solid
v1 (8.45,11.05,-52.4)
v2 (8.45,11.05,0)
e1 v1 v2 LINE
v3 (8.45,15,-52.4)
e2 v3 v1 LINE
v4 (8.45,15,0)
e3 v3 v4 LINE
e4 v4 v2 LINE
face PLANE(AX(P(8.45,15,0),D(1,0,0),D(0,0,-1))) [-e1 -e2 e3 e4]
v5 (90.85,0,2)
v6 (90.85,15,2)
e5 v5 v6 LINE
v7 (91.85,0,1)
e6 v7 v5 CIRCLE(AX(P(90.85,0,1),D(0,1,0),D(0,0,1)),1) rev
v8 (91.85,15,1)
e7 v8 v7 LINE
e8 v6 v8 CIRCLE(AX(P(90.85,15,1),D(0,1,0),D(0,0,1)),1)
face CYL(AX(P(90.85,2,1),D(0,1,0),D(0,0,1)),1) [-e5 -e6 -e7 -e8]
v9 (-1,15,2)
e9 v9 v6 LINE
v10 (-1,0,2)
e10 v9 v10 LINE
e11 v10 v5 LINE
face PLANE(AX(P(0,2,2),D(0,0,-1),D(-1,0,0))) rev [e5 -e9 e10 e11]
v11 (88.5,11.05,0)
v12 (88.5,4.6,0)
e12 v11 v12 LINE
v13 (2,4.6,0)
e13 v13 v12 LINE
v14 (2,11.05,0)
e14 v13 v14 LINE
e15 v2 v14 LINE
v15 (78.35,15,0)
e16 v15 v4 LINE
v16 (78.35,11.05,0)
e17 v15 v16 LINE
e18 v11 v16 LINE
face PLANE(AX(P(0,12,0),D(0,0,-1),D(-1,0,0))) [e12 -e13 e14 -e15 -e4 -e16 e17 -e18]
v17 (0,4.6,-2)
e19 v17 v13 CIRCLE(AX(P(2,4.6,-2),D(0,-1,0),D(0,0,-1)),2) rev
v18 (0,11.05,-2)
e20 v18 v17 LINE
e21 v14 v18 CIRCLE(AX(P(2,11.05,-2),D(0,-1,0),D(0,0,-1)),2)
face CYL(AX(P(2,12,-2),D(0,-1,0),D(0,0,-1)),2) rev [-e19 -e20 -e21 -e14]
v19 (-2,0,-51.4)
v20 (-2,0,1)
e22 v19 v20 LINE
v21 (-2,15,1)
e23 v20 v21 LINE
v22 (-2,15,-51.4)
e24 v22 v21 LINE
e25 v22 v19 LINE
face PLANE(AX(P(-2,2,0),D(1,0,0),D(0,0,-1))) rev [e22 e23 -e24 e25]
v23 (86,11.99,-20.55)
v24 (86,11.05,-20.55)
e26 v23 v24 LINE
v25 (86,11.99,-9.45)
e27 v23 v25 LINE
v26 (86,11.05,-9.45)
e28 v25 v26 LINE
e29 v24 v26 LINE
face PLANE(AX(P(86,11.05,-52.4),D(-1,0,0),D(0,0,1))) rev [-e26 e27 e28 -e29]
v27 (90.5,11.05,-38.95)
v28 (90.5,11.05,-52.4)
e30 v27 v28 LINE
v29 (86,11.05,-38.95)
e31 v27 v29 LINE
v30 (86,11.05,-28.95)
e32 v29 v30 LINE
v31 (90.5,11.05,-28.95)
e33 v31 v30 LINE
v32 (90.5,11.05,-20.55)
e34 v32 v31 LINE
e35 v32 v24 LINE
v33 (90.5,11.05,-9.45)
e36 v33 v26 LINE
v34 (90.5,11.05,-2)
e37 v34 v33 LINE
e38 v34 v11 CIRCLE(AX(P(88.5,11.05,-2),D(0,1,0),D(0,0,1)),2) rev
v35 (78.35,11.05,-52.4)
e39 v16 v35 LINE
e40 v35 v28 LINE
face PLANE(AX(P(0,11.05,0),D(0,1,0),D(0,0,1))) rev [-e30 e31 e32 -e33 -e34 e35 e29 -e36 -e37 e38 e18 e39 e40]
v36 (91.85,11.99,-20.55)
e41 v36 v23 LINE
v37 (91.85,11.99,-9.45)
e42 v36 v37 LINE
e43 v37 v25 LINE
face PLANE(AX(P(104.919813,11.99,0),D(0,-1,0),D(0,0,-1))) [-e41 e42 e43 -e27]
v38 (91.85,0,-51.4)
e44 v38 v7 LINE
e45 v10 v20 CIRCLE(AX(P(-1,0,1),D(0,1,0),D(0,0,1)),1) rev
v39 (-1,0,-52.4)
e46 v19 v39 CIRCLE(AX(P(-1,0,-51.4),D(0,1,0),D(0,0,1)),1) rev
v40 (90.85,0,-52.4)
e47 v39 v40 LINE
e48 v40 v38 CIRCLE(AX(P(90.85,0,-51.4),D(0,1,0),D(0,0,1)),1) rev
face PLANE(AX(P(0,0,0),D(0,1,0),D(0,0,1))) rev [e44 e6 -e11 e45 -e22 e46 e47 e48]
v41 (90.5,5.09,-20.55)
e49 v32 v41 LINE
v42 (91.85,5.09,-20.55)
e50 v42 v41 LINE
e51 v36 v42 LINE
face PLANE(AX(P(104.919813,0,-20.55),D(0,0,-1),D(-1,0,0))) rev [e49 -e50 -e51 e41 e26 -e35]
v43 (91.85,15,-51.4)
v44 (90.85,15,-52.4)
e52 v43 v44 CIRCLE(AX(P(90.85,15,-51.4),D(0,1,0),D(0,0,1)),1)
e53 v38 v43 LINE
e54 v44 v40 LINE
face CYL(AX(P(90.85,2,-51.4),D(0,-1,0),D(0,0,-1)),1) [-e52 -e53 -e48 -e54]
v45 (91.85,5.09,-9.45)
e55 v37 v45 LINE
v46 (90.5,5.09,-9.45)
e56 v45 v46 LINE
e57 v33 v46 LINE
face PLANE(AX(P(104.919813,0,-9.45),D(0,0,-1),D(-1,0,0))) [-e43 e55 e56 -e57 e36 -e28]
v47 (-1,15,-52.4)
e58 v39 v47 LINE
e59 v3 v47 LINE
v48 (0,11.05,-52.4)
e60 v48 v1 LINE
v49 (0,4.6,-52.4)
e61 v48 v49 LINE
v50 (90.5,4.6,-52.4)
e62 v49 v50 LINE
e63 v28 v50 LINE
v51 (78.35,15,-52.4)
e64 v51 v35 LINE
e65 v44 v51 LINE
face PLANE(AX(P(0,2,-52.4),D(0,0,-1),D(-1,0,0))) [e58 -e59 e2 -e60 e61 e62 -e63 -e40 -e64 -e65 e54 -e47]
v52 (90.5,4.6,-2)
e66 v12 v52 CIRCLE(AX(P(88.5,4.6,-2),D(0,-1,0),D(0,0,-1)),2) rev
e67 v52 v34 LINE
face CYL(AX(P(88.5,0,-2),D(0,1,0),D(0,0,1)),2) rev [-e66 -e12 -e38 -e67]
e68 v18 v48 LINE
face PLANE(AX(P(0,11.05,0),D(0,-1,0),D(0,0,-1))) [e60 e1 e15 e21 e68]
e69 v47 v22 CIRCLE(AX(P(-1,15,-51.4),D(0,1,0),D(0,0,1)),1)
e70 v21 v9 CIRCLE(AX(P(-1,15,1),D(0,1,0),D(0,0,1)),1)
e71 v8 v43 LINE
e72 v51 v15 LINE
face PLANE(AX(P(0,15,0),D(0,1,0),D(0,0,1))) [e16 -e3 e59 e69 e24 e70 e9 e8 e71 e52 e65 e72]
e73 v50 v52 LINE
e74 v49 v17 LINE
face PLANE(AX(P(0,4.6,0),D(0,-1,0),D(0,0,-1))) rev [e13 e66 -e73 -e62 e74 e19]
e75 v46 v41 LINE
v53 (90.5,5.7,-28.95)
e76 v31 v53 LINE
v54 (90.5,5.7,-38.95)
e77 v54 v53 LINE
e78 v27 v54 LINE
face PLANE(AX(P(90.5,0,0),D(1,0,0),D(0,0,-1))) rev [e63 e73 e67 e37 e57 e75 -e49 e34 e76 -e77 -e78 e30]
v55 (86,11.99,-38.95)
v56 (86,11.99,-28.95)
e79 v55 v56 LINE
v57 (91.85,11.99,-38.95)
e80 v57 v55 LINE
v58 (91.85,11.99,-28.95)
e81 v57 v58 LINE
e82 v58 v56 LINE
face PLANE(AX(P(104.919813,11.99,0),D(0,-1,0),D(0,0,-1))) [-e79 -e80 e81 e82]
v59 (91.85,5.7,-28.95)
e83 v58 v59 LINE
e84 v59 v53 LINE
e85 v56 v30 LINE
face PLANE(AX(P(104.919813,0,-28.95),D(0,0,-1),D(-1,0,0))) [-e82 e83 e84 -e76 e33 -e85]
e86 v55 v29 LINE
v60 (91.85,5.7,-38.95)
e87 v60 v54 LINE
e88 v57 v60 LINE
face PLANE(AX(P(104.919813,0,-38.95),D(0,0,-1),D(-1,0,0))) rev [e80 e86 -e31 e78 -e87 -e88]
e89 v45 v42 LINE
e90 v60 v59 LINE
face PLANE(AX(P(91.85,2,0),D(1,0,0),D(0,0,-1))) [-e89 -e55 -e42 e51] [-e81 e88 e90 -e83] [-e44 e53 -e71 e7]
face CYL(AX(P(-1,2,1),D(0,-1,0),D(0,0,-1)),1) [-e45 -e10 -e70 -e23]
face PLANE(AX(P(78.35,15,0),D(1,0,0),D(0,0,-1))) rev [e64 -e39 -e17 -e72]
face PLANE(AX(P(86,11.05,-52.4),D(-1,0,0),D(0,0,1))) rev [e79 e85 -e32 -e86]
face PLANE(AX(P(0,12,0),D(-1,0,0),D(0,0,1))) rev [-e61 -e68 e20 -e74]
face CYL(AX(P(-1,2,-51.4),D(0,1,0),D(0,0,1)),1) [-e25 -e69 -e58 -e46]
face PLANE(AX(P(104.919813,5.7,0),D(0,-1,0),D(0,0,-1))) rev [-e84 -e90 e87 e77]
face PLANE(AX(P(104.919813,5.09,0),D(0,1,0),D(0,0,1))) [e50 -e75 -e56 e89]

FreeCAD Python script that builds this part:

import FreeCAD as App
import Part
import Sketcher

V = App.Vector
Q = App.Units.Quantity


def edges_at(feature, points):
    """Names of the edges that pass closest to the given points."""
    edges = feature.Shape.Edges
    near = lambda p: min(range(len(edges)), key=lambda i: edges[i].distToShape(Part.Vertex(*p))[0])
    return sorted({f"Edge{near(p) + 1}" for p in points})


def add_polygon(sketch, points):
    """Adds a closed chain of lines whose ends are joined by coincident constraints."""
    first, n = sketch.GeometryCount, len(points)
    for a, b in zip(points, points[1:] + points[:1]):
        sketch.addGeometry(Part.LineSegment(App.Vector(*a, 0), App.Vector(*b, 0)), False)
    for i in range(n):
        sketch.addConstraint(Sketcher.Constraint("Coincident", first + i, 2, first + (i + 1) % n, 1))

doc = App.newDocument("Part")
body = doc.addObject("PartDesign::Body", "Body")

# Sketch on XZ plane
sketch1 = body.newObject("Sketcher::SketchObject", "Sketch")
sketch1.AttachmentSupport = (doc.getObject("XZ_Plane"), [""])
sketch1.MapMode = "FlatFace"
add_polygon(sketch1, [(-2, -52), (-2, 2), (92, 2), (92, -52)])  # lines 0-3
sketch1.addConstraint([
    Sketcher.Constraint("Vertical", 0),
    Sketcher.Constraint("Horizontal", 1),
    Sketcher.Constraint("Vertical", 2),
    Sketcher.Constraint("Horizontal", 3),
    Sketcher.Constraint("DistanceY", 0, 1, 0, 2, Q("54.4 mm")),
    Sketcher.Constraint("DistanceX", 0, 2, -1, 1, Q("2 mm")),
    Sketcher.Constraint("DistanceY", -1, 1, 0, 2, Q("2 mm")),
    Sketcher.Constraint("DistanceX", 1, 1, 1, 2, Q("93.85 mm")),
])
pad1 = body.newObject("PartDesign::Pad", "Pad")
pad1.Profile = sketch1
pad1.Length = 2
pad1.Reversed = True

# Sketch on XZ plane
sketch2 = body.newObject("Sketcher::SketchObject", "Sketch001")
sketch2.AttachmentSupport = (doc.getObject("XZ_Plane"), [""])
sketch2.MapMode = "FlatFace"
sketch2.AttachmentOffset = App.Placement(V(0, 0, -2), App.Rotation())
add_polygon(sketch2, [(-2, -52), (-2, 2), (92, 2), (92, -52)])  # lines 0-3
add_polygon(sketch2, [(86, 0), (0, 0), (0, -50), (86, -50)])  # lines 4-7
sketch2.addConstraint([
    Sketcher.Constraint("Vertical", 0),
    Sketcher.Constraint("Horizontal", 1),
    Sketcher.Constraint("Vertical", 2),
    Sketcher.Constraint("Horizontal", 3),
    Sketcher.Constraint("Horizontal", 4),
    Sketcher.Constraint("Vertical", 5),
    Sketcher.Constraint("Horizontal", 6),
    Sketcher.Constraint("Vertical", 7),
    Sketcher.Constraint("Coincident", 4, 2, -1, 1),
    Sketcher.Constraint("DistanceX", 4, 2, 4, 1, Q("86 mm")),
    Sketcher.Constraint("DistanceY", 5, 2, 5, 1, Q("50 mm")),
    Sketcher.Constraint("DistanceY", 0, 1, 0, 2, Q("54.4 mm")),
    Sketcher.Constraint("DistanceX", 0, 2, -1, 1, Q("2 mm")),
    Sketcher.Constraint("DistanceY", -1, 1, 0, 2, Q("2 mm")),
    Sketcher.Constraint("DistanceX", 1, 1, 1, 2, Q("93.85 mm")),
])
pad2 = body.newObject("PartDesign::Pad", "Pad001")
pad2.Profile = sketch2
pad2.Length = 10
pad2.Reversed = True

# Sketch on XZ plane
sketch3 = body.newObject("Sketcher::SketchObject", "Sketch002")
sketch3.AttachmentSupport = (doc.getObject("XZ_Plane"), [""])
sketch3.MapMode = "FlatFace"
sketch3.AttachmentOffset = App.Placement(V(0, 0, -12), App.Rotation())
add_polygon(sketch3, [(8, -52), (-2, -52), (-2, 2), (92, 2), (92, -52), (78, -52), (78, 0), (8, 0)])  # lines 0-7
sketch3.addConstraint([
    Sketcher.Constraint("Horizontal", 0),
    Sketcher.Constraint("Vertical", 1),
    Sketcher.Constraint("Horizontal", 2),
    Sketcher.Constraint("Vertical", 3),
    Sketcher.Constraint("Horizontal", 4),
    Sketcher.Constraint("Vertical", 5),
    Sketcher.Constraint("Horizontal", 6),
    Sketcher.Constraint("Vertical", 7),
    Sketcher.Constraint("PointOnObject", 5, 2, -1),
    Sketcher.Constraint("Horizontal", 0, 2, 3, 2),
    Sketcher.Constraint("DistanceX", 4, 2, 4, 1, Q("13.5 mm")),
    Sketcher.Constraint("DistanceX", 6, 2, 6, 1, Q("69.9 mm")),
    Sketcher.Constraint("DistanceY", 1, 1, 1, 2, Q("54.4 mm")),
    Sketcher.Constraint("DistanceY", 5, 1, 5, 2, Q("52.4 mm")),
    Sketcher.Constraint("DistanceX", 0, 2, -1, 1, Q("2 mm")),
    Sketcher.Constraint("DistanceX", 0, 2, 0, 1, Q("10.45 mm")),
])
pad3 = body.newObject("PartDesign::Pad", "Pad002")
pad3.Profile = sketch3
pad3.Length = 3
pad3.Reversed = True

# Sketch on YZ plane
sketch4 = body.newObject("Sketcher::SketchObject", "Sketch003")
sketch4.AttachmentSupport = (doc.getObject("YZ_Plane"), [""])
sketch4.MapMode = "FlatFace"
sketch4.AttachmentOffset = App.Placement(V(0, 0, 86), App.Rotation())
add_polygon(sketch4, [(12, -39), (6, -39), (6, -29), (12, -29)])  # lines 0-3
add_polygon(sketch4, [(12, -21), (5, -21), (5, -9), (12, -9)])  # lines 4-7
sketch4.addConstraint([
    Sketcher.Constraint("Horizontal", 0),
    Sketcher.Constraint("Vertical", 1),
    Sketcher.Constraint("Horizontal", 2),
    Sketcher.Constraint("Vertical", 3),
    Sketcher.Constraint("Horizontal", 4),
    Sketcher.Constraint("Vertical", 5),
    Sketcher.Constraint("Horizontal", 6),
    Sketcher.Constraint("Vertical", 7),
    Sketcher.Constraint("Vertical", 3, 2, 6, 2),
    Sketcher.Constraint("DistanceY", 1, 1, 1, 2, Q("10 mm")),
    Sketcher.Constraint("DistanceX", 4, 2, 4, 1, Q("6.9 mm")),
    Sketcher.Constraint("DistanceY", 5, 1, 5, 2, Q("11.1 mm")),
    Sketcher.Constraint("DistanceX", 0, 2, 0, 1, Q("6.29 mm")),
    Sketcher.Constraint("DistanceX", -1, 1, 0, 2, Q("5.7 mm")),
    Sketcher.Constraint("DistanceY", 1, 2, 4, 2, Q("8.4 mm")),
    Sketcher.Constraint("DistanceY", 0, 2, -1, 1, Q("38.95 mm")),
])
pocket1 = body.newObject("PartDesign::Pocket", "Pocket")
pocket1.Profile = sketch4
pocket1.Length = 5.85
pocket1.Reversed = True

# Sketch on XZ plane
sketch5 = body.newObject("Sketcher::SketchObject", "Sketch004")
sketch5.AttachmentSupport = (doc.getObject("XZ_Plane"), [""])
sketch5.MapMode = "FlatFace"
sketch5.AttachmentOffset = App.Placement(V(0, 0, -2), App.Rotation())
add_polygon(sketch5, [(0, -50), (0, 0), (86, 0), (86, -50)])  # lines 0-3
sketch5.addConstraint([
    Sketcher.Constraint("Vertical", 0),
    Sketcher.Constraint("Horizontal", 1),
    Sketcher.Constraint("Vertical", 2),
    Sketcher.Constraint("Horizontal", 3),
    Sketcher.Constraint("Coincident", 0, 2, -1, 1),
    Sketcher.Constraint("DistanceX", 1, 1, 1, 2, Q("86 mm")),
    Sketcher.Constraint("DistanceY", 0, 1, 0, 2, Q("50 mm")),
])
pad4 = body.newObject("PartDesign::Pad", "Pad003")
pad4.Profile = sketch5
pad4.Length = 2.6
pad4.Reversed = True

# Sketch on XY plane
sketch6 = body.newObject("Sketcher::SketchObject", "Sketch005")
sketch6.AttachmentSupport = (doc.getObject("XY_Plane"), [""])
sketch6.MapMode = "FlatFace"
sketch6.AttachmentOffset = App.Placement(V(0, 0, -50), App.Rotation())
add_polygon(sketch6, [(0, 12), (0, 5), (86, 5), (86, 12)])  # lines 0-3
sketch6.addConstraint([
    Sketcher.Constraint("Vertical", 0),
    Sketcher.Constraint("Horizontal", 1),
    Sketcher.Constraint("Vertical", 2),
    Sketcher.Constraint("Horizontal", 3),
    Sketcher.Constraint("PointOnObject", 0, 2, -2),
    Sketcher.Constraint("DistanceX", 1, 1, 1, 2, Q("86 mm")),
    Sketcher.Constraint("DistanceY", 0, 2, 0, 1, Q("7.4 mm")),
    Sketcher.Constraint("DistanceY", -1, 1, 2, 2, Q("12 mm")),
])
pocket2 = body.newObject("PartDesign::Pocket", "Pocket001")
pocket2.Profile = sketch6
pocket2.Length = 2.4

# Sketch on XZ plane
sketch7 = body.newObject("Sketcher::SketchObject", "Sketch006")
sketch7.AttachmentSupport = (doc.getObject("XZ_Plane"), [""])
sketch7.MapMode = "FlatFace"
sketch7.AttachmentOffset = App.Placement(V(0, 0, -12), App.Rotation())
add_polygon(sketch7, [(78, 0), (78, -52), (86, -52), (86, 0)])  # lines 0-3
add_polygon(sketch7, [(0, 0), (0, -52), (8, -52), (8, 0)])  # lines 4-7
sketch7.addConstraint([
    Sketcher.Constraint("Vertical", 0),
    Sketcher.Constraint("Horizontal", 1),
    Sketcher.Constraint("Vertical", 2),
    Sketcher.Constraint("Horizontal", 3),
    Sketcher.Constraint("Vertical", 4),
    Sketcher.Constraint("Horizontal", 5),
    Sketcher.Constraint("Vertical", 6),
    Sketcher.Constraint("Horizontal", 7),
    Sketcher.Constraint("Coincident", 7, 2, -1, 1),
    Sketcher.Constraint("PointOnObject", 2, 2, -1),
    Sketcher.Constraint("Horizontal", 1, 2, 4, 2),
    Sketcher.Constraint("DistanceY", 0, 2, 0, 1, Q("52.4 mm")),
    Sketcher.Constraint("DistanceX", -1, 1, 1, 2, Q("86 mm")),
    Sketcher.Constraint("DistanceX", 1, 1, 1, 2, Q("7.65 mm")),
    Sketcher.Constraint("DistanceX", 5, 1, 5, 2, Q("8.45 mm")),
])
pad5 = body.newObject("PartDesign::Pad", "Pad004")
pad5.Profile = sketch7
pad5.Length = 0.95

# Sketch on YZ plane
sketch8 = body.newObject("Sketcher::SketchObject", "Sketch007")
sketch8.AttachmentSupport = (doc.getObject("YZ_Plane"), [""])
sketch8.MapMode = "FlatFace"
sketch8.AttachmentOffset = App.Placement(V(0, 0, 86), App.Rotation())
add_polygon(sketch8, [(11, -52), (5, -52), (5, 0), (11, 0)])  # lines 0-3
sketch8.addConstraint([
    Sketcher.Constraint("Horizontal", 0),
    Sketcher.Constraint("Vertical", 1),
    Sketcher.Constraint("Horizontal", 2),
    Sketcher.Constraint("Vertical", 3),
    Sketcher.Constraint("PointOnObject", 1, 2, -1),
    Sketcher.Constraint("DistanceY", 1, 1, 1, 2, Q("52.4 mm")),
    Sketcher.Constraint("DistanceX", 0, 2, 0, 1, Q("6.45 mm")),
    Sketcher.Constraint("DistanceX", -1, 1, 0, 2, Q("4.6 mm")),
])
pocket3 = body.newObject("PartDesign::Pocket", "Pocket002")
pocket3.Profile = sketch8
pocket3.Length = 3
pocket3.Reversed = True

# Sketch on YZ plane
sketch9 = body.newObject("Sketcher::SketchObject", "Sketch008")
sketch9.AttachmentSupport = (doc.getObject("YZ_Plane"), [""])
sketch9.MapMode = "FlatFace"
sketch9.AttachmentOffset = App.Placement(V(0, 0, 89), App.Rotation())
add_polygon(sketch9, [(11, -52), (5, -52), (5, 0), (11, 0)])  # lines 0-3
sketch9.addConstraint([
    Sketcher.Constraint("Horizontal", 0),
    Sketcher.Constraint("Vertical", 1),
    Sketcher.Constraint("Horizontal", 2),
    Sketcher.Constraint("Vertical", 3),
    Sketcher.Constraint("PointOnObject", 1, 2, -1),
    Sketcher.Constraint("DistanceY", 1, 1, 1, 2, Q("52.4 mm")),
    Sketcher.Constraint("DistanceX", 0, 2, 0, 1, Q("6.45 mm")),
    Sketcher.Constraint("DistanceX", -1, 1, 0, 2, Q("4.6 mm")),
])
pocket4 = body.newObject("PartDesign::Pocket", "Pocket003")
pocket4.Profile = sketch9
pocket4.Length = 1.5
pocket4.Reversed = True
doc.recompute()

fillet = body.newObject("PartDesign::Fillet", "Fillet")
fillet.Base = (pocket4, edges_at(pocket4, [(0, 7.825, 0), (90.5, 7.825, 0)]))
fillet.Radius = 2
doc.recompute()

fillet2 = body.newObject("PartDesign::Fillet", "Fillet001")
fillet2.Base = (fillet, edges_at(fillet, [
    (91.85, 7.5, 2),
    (-2, 7.5, 2),
    (-2, 7.5, -52.4),
    (91.85, 7.5, -52.4),
]))
fillet2.Radius = 1

doc.recompute()
